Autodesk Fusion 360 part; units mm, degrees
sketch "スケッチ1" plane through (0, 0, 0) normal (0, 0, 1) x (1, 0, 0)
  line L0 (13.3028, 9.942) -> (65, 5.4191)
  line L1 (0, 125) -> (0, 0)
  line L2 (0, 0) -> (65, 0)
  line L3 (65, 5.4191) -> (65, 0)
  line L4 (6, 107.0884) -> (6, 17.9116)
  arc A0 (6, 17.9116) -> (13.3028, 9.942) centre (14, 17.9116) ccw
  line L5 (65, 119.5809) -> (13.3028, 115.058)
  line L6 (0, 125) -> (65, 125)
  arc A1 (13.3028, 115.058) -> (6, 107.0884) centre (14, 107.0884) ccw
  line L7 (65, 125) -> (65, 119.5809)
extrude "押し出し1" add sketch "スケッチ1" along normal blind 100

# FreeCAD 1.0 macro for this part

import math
import FreeCAD as App
import Part
import Sketcher
Q = App.Units.Quantity

doc = App.newDocument("Part")
params = doc.addObject("Spreadsheet::Sheet", "Params")
for row, (alias, value) in enumerate([
    ("sketch1_radius", "8 mm"),
    ("sketch1_width", "65 mm"),
    ("sketch1_height", "125 mm"),
    ("pad1_length", "100 mm"),
], start=1):
    params.set(f"A{row}", alias)
    params.set(f"B{row}", "=" + value)
    params.setAlias(f"B{row}", alias)

body = doc.addObject("PartDesign::Body", "Body")

sketch1 = body.newObject("Sketcher::SketchObject", "Sketch")
sketch1.AttachmentSupport = (doc.getObject("XY_Plane"), [""])
sketch1.MapMode = "FlatFace"
sketch1.addGeometry([
    Part.LineSegment(App.Vector(65, 5.4191, 0), App.Vector(13.3028, 9.942, 0)),
    Part.ArcOfCircle(Part.Circle(App.Vector(14, 17.9116, 0), App.Vector(0, 0, 1), 8), math.radians(180), math.radians(265.000354)),
    Part.LineSegment(App.Vector(6, 17.9116, 0), App.Vector(6, 107.0884, 0)),
    Part.ArcOfCircle(Part.Circle(App.Vector(14, 107.0884, 0), App.Vector(0, 0, 1), 8.000038), math.radians(94.999646), math.radians(180)),
    Part.LineSegment(App.Vector(13.3028, 115.058, 0), App.Vector(65, 119.5809, 0)),
    Part.LineSegment(App.Vector(65, 119.5809, 0), App.Vector(65, 125, 0)),
    Part.LineSegment(App.Vector(65, 125, 0), App.Vector(0, 125, 0)),
    Part.LineSegment(App.Vector(0, 125, 0), App.Vector(0, 0, 0)),
    Part.LineSegment(App.Vector(0, 0, 0), App.Vector(65, 0, 0)),
    Part.LineSegment(App.Vector(65, 0, 0), App.Vector(65, 5.4191, 0)),
], False)
sketch1.addConstraint([
    Sketcher.Constraint("Tangent", 0, 2, 1, 2),
    Sketcher.Constraint("Tangent", 1, 1, 2, 1),
    Sketcher.Constraint("Tangent", 2, 2, 3, 2),
    Sketcher.Constraint("Tangent", 3, 1, 4, 1),
    Sketcher.Constraint("Coincident", 4, 2, 5, 1),
    Sketcher.Constraint("Coincident", 5, 2, 6, 1),
    Sketcher.Constraint("Coincident", 6, 2, 7, 1),
    Sketcher.Constraint("Coincident", 7, 2, 8, 1),
    Sketcher.Constraint("Coincident", 8, 2, 9, 1),
    Sketcher.Constraint("Coincident", 9, 2, 0, 1),
    Sketcher.Constraint("Vertical", 2),
    Sketcher.Constraint("Vertical", 5),
    Sketcher.Constraint("Horizontal", 6),
    Sketcher.Constraint("Vertical", 7),
    Sketcher.Constraint("Horizontal", 8),
    Sketcher.Constraint("Vertical", 9),
    Sketcher.Constraint("Coincident", 7, 2, -1, 1),
    Sketcher.Constraint("Equal", 1, 3),
    Sketcher.Constraint("Vertical", 0, 2, 3, 1),
    Sketcher.Constraint("Vertical", 5, 2, 8, 2),
    Sketcher.Constraint("Equal", 5, 9),
    Sketcher.Constraint("Radius", 1, Q("8 mm")),
    Sketcher.Constraint("DistanceX", 6, 2, 6, 1, Q("65 mm")),
    Sketcher.Constraint("DistanceY", 7, 2, 7, 1, Q("125 mm")),
    Sketcher.Constraint("Angle", 0, Q("175 deg")),
    Sketcher.Constraint("DistanceX", -1, 1, 1, 3, Q("14 mm")),
    Sketcher.Constraint("DistanceY", 5, 1, 5, 2, Q("5.419 mm")),
])
sketch1.setExpression("Constraints[21]", "Params.sketch1_radius")
sketch1.setExpression("Constraints[22]", "Params.sketch1_width")
sketch1.setExpression("Constraints[23]", "Params.sketch1_height")
pad1 = body.newObject("PartDesign::Pad", "Pad")
pad1.Profile = sketch1
pad1.setExpression("Length", "Params.pad1_length")

doc.recompute()
